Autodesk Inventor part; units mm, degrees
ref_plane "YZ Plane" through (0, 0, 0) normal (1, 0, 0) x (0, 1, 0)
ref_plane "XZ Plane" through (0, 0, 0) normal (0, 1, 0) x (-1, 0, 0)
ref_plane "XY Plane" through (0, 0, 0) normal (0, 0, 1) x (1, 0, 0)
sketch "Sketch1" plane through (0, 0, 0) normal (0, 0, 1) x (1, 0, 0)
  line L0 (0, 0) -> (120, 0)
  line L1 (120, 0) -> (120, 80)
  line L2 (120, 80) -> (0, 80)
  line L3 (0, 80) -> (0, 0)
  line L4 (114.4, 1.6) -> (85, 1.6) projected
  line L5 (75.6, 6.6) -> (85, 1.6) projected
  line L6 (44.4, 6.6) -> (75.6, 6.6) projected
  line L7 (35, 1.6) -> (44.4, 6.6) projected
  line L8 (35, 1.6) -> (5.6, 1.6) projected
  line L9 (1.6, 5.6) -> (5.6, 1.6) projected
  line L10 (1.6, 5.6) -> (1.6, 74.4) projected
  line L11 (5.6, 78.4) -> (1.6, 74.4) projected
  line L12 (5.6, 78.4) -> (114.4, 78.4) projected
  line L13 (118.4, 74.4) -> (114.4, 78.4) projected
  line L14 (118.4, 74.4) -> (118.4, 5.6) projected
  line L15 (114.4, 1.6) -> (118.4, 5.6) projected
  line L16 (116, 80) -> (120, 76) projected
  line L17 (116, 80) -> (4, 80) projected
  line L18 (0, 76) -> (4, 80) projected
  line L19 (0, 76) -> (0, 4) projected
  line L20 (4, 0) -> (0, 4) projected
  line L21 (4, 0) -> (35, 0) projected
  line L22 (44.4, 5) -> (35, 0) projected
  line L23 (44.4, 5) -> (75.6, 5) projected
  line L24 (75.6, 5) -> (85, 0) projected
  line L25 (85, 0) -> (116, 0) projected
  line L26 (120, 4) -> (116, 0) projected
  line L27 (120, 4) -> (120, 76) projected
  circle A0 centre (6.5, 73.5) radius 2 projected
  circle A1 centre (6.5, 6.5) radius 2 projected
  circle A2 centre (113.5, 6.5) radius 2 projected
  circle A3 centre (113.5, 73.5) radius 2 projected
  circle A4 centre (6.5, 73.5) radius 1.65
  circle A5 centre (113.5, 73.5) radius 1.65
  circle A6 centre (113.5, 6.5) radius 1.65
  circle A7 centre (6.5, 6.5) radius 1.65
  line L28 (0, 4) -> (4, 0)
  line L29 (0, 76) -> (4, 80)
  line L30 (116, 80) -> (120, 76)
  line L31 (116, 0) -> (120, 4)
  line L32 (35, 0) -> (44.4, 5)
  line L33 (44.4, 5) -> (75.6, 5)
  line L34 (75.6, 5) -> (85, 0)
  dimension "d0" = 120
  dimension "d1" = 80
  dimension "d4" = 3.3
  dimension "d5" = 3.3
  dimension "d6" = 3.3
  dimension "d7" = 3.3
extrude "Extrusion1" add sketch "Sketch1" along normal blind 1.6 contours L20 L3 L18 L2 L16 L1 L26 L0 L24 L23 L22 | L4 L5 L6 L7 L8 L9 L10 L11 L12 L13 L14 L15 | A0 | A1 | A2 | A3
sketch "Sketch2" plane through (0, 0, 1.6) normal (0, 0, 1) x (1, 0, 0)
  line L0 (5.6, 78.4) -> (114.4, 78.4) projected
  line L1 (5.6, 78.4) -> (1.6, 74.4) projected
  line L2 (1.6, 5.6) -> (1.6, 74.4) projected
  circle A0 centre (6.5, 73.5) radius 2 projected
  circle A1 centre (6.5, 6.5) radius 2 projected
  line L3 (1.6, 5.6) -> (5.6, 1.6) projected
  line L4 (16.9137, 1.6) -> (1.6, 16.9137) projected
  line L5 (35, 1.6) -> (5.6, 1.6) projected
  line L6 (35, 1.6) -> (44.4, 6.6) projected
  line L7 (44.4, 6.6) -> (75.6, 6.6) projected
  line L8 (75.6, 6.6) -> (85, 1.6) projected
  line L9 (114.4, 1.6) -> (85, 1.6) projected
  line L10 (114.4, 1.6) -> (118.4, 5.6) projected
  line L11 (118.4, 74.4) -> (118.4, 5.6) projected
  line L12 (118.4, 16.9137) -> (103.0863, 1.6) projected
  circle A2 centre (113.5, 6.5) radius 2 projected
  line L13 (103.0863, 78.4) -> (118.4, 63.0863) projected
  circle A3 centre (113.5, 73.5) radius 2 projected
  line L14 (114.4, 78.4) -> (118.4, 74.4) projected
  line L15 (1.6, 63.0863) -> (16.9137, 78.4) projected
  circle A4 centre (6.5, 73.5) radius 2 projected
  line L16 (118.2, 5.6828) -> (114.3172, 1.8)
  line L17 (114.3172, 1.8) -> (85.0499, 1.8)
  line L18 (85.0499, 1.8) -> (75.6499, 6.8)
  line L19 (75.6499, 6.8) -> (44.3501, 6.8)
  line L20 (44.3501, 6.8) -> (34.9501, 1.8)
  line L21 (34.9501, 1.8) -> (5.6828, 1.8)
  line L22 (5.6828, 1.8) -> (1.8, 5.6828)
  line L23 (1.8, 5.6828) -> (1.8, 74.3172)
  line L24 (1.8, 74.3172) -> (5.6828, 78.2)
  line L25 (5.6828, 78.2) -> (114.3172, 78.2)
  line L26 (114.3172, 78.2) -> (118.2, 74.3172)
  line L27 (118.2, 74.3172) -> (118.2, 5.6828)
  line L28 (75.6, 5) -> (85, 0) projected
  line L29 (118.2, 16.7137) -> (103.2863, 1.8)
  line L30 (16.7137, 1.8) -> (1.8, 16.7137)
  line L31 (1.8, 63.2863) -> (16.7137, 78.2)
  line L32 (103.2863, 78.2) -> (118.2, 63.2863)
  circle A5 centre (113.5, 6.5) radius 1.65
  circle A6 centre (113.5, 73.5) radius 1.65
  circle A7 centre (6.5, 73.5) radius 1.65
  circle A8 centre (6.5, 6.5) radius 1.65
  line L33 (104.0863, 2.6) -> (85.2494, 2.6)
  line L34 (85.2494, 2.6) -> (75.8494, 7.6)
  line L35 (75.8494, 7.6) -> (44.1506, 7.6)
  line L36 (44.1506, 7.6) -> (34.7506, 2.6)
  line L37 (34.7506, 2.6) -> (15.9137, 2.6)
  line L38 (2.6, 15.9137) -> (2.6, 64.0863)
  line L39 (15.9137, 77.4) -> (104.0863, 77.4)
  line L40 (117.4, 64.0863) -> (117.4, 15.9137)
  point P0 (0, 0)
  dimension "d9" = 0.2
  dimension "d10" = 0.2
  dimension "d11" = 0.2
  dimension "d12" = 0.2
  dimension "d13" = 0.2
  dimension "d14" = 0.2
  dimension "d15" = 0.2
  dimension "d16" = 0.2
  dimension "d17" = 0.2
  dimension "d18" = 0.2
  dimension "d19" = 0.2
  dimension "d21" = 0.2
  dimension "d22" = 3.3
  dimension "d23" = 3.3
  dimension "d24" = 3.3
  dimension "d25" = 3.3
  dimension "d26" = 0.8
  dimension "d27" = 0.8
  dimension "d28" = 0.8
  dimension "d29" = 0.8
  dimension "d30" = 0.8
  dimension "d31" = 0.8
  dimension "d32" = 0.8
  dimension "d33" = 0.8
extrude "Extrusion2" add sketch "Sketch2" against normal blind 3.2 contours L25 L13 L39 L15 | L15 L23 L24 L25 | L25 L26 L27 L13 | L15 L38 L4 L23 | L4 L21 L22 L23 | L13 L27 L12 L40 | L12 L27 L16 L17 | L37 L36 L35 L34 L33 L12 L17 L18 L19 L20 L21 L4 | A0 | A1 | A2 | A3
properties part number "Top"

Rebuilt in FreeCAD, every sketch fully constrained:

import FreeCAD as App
import Part
import Sketcher
Q = App.Units.Quantity

doc = App.newDocument("Part")
params = doc.addObject("Spreadsheet::Sheet", "Params")
for row, (alias, value) in enumerate([
    ("sketch1_diameter", "3.3 mm"),
    ("sketch1_width", "31 mm"),
    ("sketch1_width2", "112 mm"),
    ("sketch1_width3", "31.2 mm"),
    ("pad1_length", "1.6 mm"),
    ("sketch2_diameter", "3.3 mm"),
    ("pad2_length", "3.2 mm"),
], start=1):
    params.set(f"A{row}", alias)
    params.set(f"B{row}", "=" + value)
    params.setAlias(f"B{row}", alias)

body = doc.addObject("PartDesign::Body", "Body")

# Sketch on XY plane
sketch1 = body.newObject("Sketcher::SketchObject", "Sketch")
sketch1.AttachmentSupport = (doc.getObject("XY_Plane"), [""])
sketch1.MapMode = "FlatFace"
sketch1.addGeometry(Part.LineSegment(App.Vector(0, 4, 0), App.Vector(4, 0, 0)), False)
sketch1.addGeometry(Part.LineSegment(App.Vector(4, 0, 0), App.Vector(35, 0, 0)), False)
sketch1.addGeometry(Part.LineSegment(App.Vector(35, 0, 0), App.Vector(44.4, 5, 0)), False)
sketch1.addGeometry(Part.LineSegment(App.Vector(44.4, 5, 0), App.Vector(75.6, 5, 0)), False)
sketch1.addGeometry(Part.LineSegment(App.Vector(75.6, 5, 0), App.Vector(85, 0, 0)), False)
sketch1.addGeometry(Part.LineSegment(App.Vector(85, 0, 0), App.Vector(116, 0, 0)), False)
sketch1.addGeometry(Part.LineSegment(App.Vector(116, 0, 0), App.Vector(120, 4, 0)), False)
sketch1.addGeometry(Part.LineSegment(App.Vector(120, 4, 0), App.Vector(120, 76, 0)), False)
sketch1.addGeometry(Part.LineSegment(App.Vector(120, 76, 0), App.Vector(116, 80, 0)), False)
sketch1.addGeometry(Part.LineSegment(App.Vector(116, 80, 0), App.Vector(4, 80, 0)), False)
sketch1.addGeometry(Part.LineSegment(App.Vector(4, 80, 0), App.Vector(0, 76, 0)), False)
sketch1.addGeometry(Part.LineSegment(App.Vector(0, 76, 0), App.Vector(0, 4, 0)), False)
sketch1.addGeometry(Part.Circle(App.Vector(6.5, 6.5, 0), App.Vector(0, 0, 1), 1.65), False)
sketch1.addGeometry(Part.Circle(App.Vector(113.5, 6.5, 0), App.Vector(0, 0, 1), 1.65), False)
sketch1.addGeometry(Part.Circle(App.Vector(6.5, 73.5, 0), App.Vector(0, 0, 1), 1.65), False)
sketch1.addGeometry(Part.Circle(App.Vector(113.5, 73.5, 0), App.Vector(0, 0, 1), 1.65), False)
sketch1.addConstraint(Sketcher.Constraint("Coincident", 0, 2, 1, 1))
sketch1.addConstraint(Sketcher.Constraint("Coincident", 1, 2, 2, 1))
sketch1.addConstraint(Sketcher.Constraint("Coincident", 2, 2, 3, 1))
sketch1.addConstraint(Sketcher.Constraint("Coincident", 3, 2, 4, 1))
sketch1.addConstraint(Sketcher.Constraint("Coincident", 4, 2, 5, 1))
sketch1.addConstraint(Sketcher.Constraint("Coincident", 5, 2, 6, 1))
sketch1.addConstraint(Sketcher.Constraint("Coincident", 6, 2, 7, 1))
sketch1.addConstraint(Sketcher.Constraint("Coincident", 7, 2, 8, 1))
sketch1.addConstraint(Sketcher.Constraint("Coincident", 8, 2, 9, 1))
sketch1.addConstraint(Sketcher.Constraint("Coincident", 9, 2, 10, 1))
sketch1.addConstraint(Sketcher.Constraint("Coincident", 10, 2, 11, 1))
sketch1.addConstraint(Sketcher.Constraint("Coincident", 11, 2, 0, 1))
sketch1.addConstraint(Sketcher.Constraint("Horizontal", 1))
sketch1.addConstraint(Sketcher.Constraint("Horizontal", 3))
sketch1.addConstraint(Sketcher.Constraint("Horizontal", 5))
sketch1.addConstraint(Sketcher.Constraint("Vertical", 7))
sketch1.addConstraint(Sketcher.Constraint("Horizontal", 9))
sketch1.addConstraint(Sketcher.Constraint("Vertical", 11))
sketch1.addConstraint(Sketcher.Constraint("Equal", 12, 13))
sketch1.addConstraint(Sketcher.Constraint("Equal", 13, 14))
sketch1.addConstraint(Sketcher.Constraint("Equal", 14, 15))
sketch1.addConstraint(Sketcher.Constraint("PointOnObject", 0, 2, -1))
sketch1.addConstraint(Sketcher.Constraint("PointOnObject", 4, 2, -1))
sketch1.addConstraint(Sketcher.Constraint("PointOnObject", 10, 2, -2))
sketch1.addConstraint(Sketcher.Constraint("Perpendicular", 0, 6))
sketch1.addConstraint(Sketcher.Constraint("Perpendicular", 6, 8))
sketch1.addConstraint(Sketcher.Constraint("Perpendicular", 8, 10))
sketch1.addConstraint(Sketcher.Constraint("Horizontal", 12, 3, 13, 3))
sketch1.addConstraint(Sketcher.Constraint("Horizontal", 14, 3, 15, 3))
sketch1.addConstraint(Sketcher.Constraint("Horizontal", 7, 2, 10, 2))
sketch1.addConstraint(Sketcher.Constraint("Horizontal", 6, 2, 11, 2))
sketch1.addConstraint(Sketcher.Constraint("Vertical", 12, 3, 14, 3))
sketch1.addConstraint(Sketcher.Constraint("Vertical", 13, 3, 15, 3))
sketch1.addConstraint(Sketcher.Constraint("Vertical", 5, 2, 8, 2))
sketch1.addConstraint(Sketcher.Constraint("Vertical", 0, 2, 9, 2))
sketch1.addConstraint(Sketcher.Constraint("Equal", 1, 5))
sketch1.addConstraint(Sketcher.Constraint("Equal", 2, 4))
sketch1.addConstraint(Sketcher.Constraint("Diameter", 12, 3.3))
sketch1.addConstraint(Sketcher.Constraint("DistanceX", -1, 1, 6, 2, 120.0))
sketch1.addConstraint(Sketcher.Constraint("DistanceY", -1, 1, 8, 2, 80.0))
sketch1.addConstraint(Sketcher.Constraint("DistanceX", 1, 1, 1, 2, 31.0))
sketch1.addConstraint(Sketcher.Constraint("DistanceX", 9, 2, 9, 1, 112.0))
sketch1.addConstraint(Sketcher.Constraint("DistanceX", 3, 1, 3, 2, 31.2))
sketch1.addConstraint(Sketcher.Constraint("DistanceY", -1, 1, 2, 2, 5.0))
sketch1.addConstraint(Sketcher.Constraint("DistanceX", 12, 3, 13, 3, 107.0))
sketch1.addConstraint(Sketcher.Constraint("DistanceY", 12, 3, 14, 3, 67.0))
sketch1.addConstraint(Sketcher.Constraint("DistanceX", -1, 1, 12, 3, 6.5))
sketch1.addConstraint(Sketcher.Constraint("DistanceY", -1, 1, 12, 3, 6.5))
sketch1.setExpression("Constraints[37]", "Params.sketch1_diameter")
sketch1.setExpression("Constraints[40]", "Params.sketch1_width")
sketch1.setExpression("Constraints[41]", "Params.sketch1_width2")
sketch1.setExpression("Constraints[42]", "Params.sketch1_width3")
pad1 = body.newObject("PartDesign::Pad", "Pad")
pad1.Profile = sketch1
pad1.setExpression("Length", "Params.pad1_length")

# Sketch on XY plane
sketch2 = body.newObject("Sketcher::SketchObject", "Sketch001")
sketch2.AttachmentSupport = (doc.getObject("XY_Plane"), [""])
sketch2.MapMode = "FlatFace"
sketch2.AttachmentOffset = App.Placement(App.Vector(0, 0, 1.6), App.Rotation())
sketch2.addGeometry(Part.LineSegment(App.Vector(5.6828, 78.2, 0), App.Vector(1.8, 74.3172, 0)), False)
sketch2.addGeometry(Part.LineSegment(App.Vector(1.8, 74.3172, 0), App.Vector(1.8, 5.6828, 0)), False)
sketch2.addGeometry(Part.LineSegment(App.Vector(1.8, 5.6828, 0), App.Vector(5.6828, 1.8, 0)), False)
sketch2.addGeometry(Part.LineSegment(App.Vector(5.6828, 1.8, 0), App.Vector(34.9501, 1.8, 0)), False)
sketch2.addGeometry(Part.LineSegment(App.Vector(34.9501, 1.8, 0), App.Vector(44.3501, 6.8, 0)), False)
sketch2.addGeometry(Part.LineSegment(App.Vector(44.3501, 6.8, 0), App.Vector(75.6499, 6.8, 0)), False)
sketch2.addGeometry(Part.LineSegment(App.Vector(75.6499, 6.8, 0), App.Vector(85.0499, 1.8, 0)), False)
sketch2.addGeometry(Part.LineSegment(App.Vector(85.0499, 1.8, 0), App.Vector(114.3172, 1.8, 0)), False)
sketch2.addGeometry(Part.LineSegment(App.Vector(114.3172, 1.8, 0), App.Vector(118.2, 5.6828, 0)), False)
sketch2.addGeometry(Part.LineSegment(App.Vector(118.2, 5.6828, 0), App.Vector(118.2, 74.3172, 0)), False)
sketch2.addGeometry(Part.LineSegment(App.Vector(118.2, 74.3172, 0), App.Vector(114.3172, 78.2, 0)), False)
sketch2.addGeometry(Part.LineSegment(App.Vector(114.3172, 78.2, 0), App.Vector(5.6828, 78.2, 0)), False)
sketch2.addGeometry(Part.LineSegment(App.Vector(15.9137, 77.4, 0), App.Vector(104.0863, 77.4, 0)), False)
sketch2.addGeometry(Part.LineSegment(App.Vector(104.0863, 77.4, 0), App.Vector(117.4, 64.0863, 0)), False)
sketch2.addGeometry(Part.LineSegment(App.Vector(117.4, 64.0863, 0), App.Vector(117.4, 15.9137, 0)), False)
sketch2.addGeometry(Part.LineSegment(App.Vector(117.4, 15.9137, 0), App.Vector(104.0863, 2.6, 0)), False)
sketch2.addGeometry(Part.LineSegment(App.Vector(104.0863, 2.6, 0), App.Vector(85.2494, 2.6, 0)), False)
sketch2.addGeometry(Part.LineSegment(App.Vector(85.2494, 2.6, 0), App.Vector(75.8494, 7.6, 0)), False)
sketch2.addGeometry(Part.LineSegment(App.Vector(75.8494, 7.6, 0), App.Vector(44.1506, 7.6, 0)), False)
sketch2.addGeometry(Part.LineSegment(App.Vector(44.1506, 7.6, 0), App.Vector(34.7506, 2.6, 0)), False)
sketch2.addGeometry(Part.LineSegment(App.Vector(34.7506, 2.6, 0), App.Vector(15.9137, 2.6, 0)), False)
sketch2.addGeometry(Part.LineSegment(App.Vector(15.9137, 2.6, 0), App.Vector(2.6, 15.9137, 0)), False)
sketch2.addGeometry(Part.LineSegment(App.Vector(2.6, 15.9137, 0), App.Vector(2.6, 64.0863, 0)), False)
sketch2.addGeometry(Part.LineSegment(App.Vector(2.6, 64.0863, 0), App.Vector(15.9137, 77.4, 0)), False)
sketch2.addGeometry(Part.Circle(App.Vector(113.5, 73.5, 0), App.Vector(0, 0, 1), 1.65), False)
sketch2.addGeometry(Part.Circle(App.Vector(6.5, 73.5, 0), App.Vector(0, 0, 1), 1.65), False)
sketch2.addGeometry(Part.Circle(App.Vector(113.5, 6.5, 0), App.Vector(0, 0, 1), 1.65), False)
sketch2.addGeometry(Part.Circle(App.Vector(6.5, 6.5, 0), App.Vector(0, 0, 1), 1.65), False)
sketch2.addConstraint(Sketcher.Constraint("Coincident", 0, 2, 1, 1))
sketch2.addConstraint(Sketcher.Constraint("Coincident", 1, 2, 2, 1))
sketch2.addConstraint(Sketcher.Constraint("Coincident", 2, 2, 3, 1))
sketch2.addConstraint(Sketcher.Constraint("Coincident", 3, 2, 4, 1))
sketch2.addConstraint(Sketcher.Constraint("Coincident", 4, 2, 5, 1))
sketch2.addConstraint(Sketcher.Constraint("Coincident", 5, 2, 6, 1))
sketch2.addConstraint(Sketcher.Constraint("Coincident", 6, 2, 7, 1))
sketch2.addConstraint(Sketcher.Constraint("Coincident", 7, 2, 8, 1))
sketch2.addConstraint(Sketcher.Constraint("Coincident", 8, 2, 9, 1))
sketch2.addConstraint(Sketcher.Constraint("Coincident", 9, 2, 10, 1))
sketch2.addConstraint(Sketcher.Constraint("Coincident", 10, 2, 11, 1))
sketch2.addConstraint(Sketcher.Constraint("Coincident", 11, 2, 0, 1))
sketch2.addConstraint(Sketcher.Constraint("Coincident", 12, 2, 13, 1))
sketch2.addConstraint(Sketcher.Constraint("Coincident", 13, 2, 14, 1))
sketch2.addConstraint(Sketcher.Constraint("Coincident", 14, 2, 15, 1))
sketch2.addConstraint(Sketcher.Constraint("Coincident", 15, 2, 16, 1))
sketch2.addConstraint(Sketcher.Constraint("Coincident", 16, 2, 17, 1))
sketch2.addConstraint(Sketcher.Constraint("Coincident", 17, 2, 18, 1))
sketch2.addConstraint(Sketcher.Constraint("Coincident", 18, 2, 19, 1))
sketch2.addConstraint(Sketcher.Constraint("Coincident", 19, 2, 20, 1))
sketch2.addConstraint(Sketcher.Constraint("Coincident", 20, 2, 21, 1))
sketch2.addConstraint(Sketcher.Constraint("Coincident", 21, 2, 22, 1))
sketch2.addConstraint(Sketcher.Constraint("Coincident", 22, 2, 23, 1))
sketch2.addConstraint(Sketcher.Constraint("Coincident", 23, 2, 12, 1))
sketch2.addConstraint(Sketcher.Constraint("Vertical", 1))
sketch2.addConstraint(Sketcher.Constraint("Horizontal", 3))
sketch2.addConstraint(Sketcher.Constraint("Horizontal", 5))
sketch2.addConstraint(Sketcher.Constraint("Horizontal", 7))
sketch2.addConstraint(Sketcher.Constraint("Vertical", 9))
sketch2.addConstraint(Sketcher.Constraint("Horizontal", 11))
sketch2.addConstraint(Sketcher.Constraint("Horizontal", 12))
sketch2.addConstraint(Sketcher.Constraint("Vertical", 14))
sketch2.addConstraint(Sketcher.Constraint("Horizontal", 16))
sketch2.addConstraint(Sketcher.Constraint("Horizontal", 18))
sketch2.addConstraint(Sketcher.Constraint("Horizontal", 20))
sketch2.addConstraint(Sketcher.Constraint("Vertical", 22))
sketch2.addConstraint(Sketcher.Constraint("Equal", 24, 25))
sketch2.addConstraint(Sketcher.Constraint("Equal", 25, 26))
sketch2.addConstraint(Sketcher.Constraint("Equal", 26, 27))
sketch2.addConstraint(Sketcher.Constraint("Perpendicular", 0, 2))
sketch2.addConstraint(Sketcher.Constraint("Perpendicular", 2, 8))
sketch2.addConstraint(Sketcher.Constraint("Perpendicular", 8, 10))
sketch2.addConstraint(Sketcher.Constraint("Parallel", 10, 13))
sketch2.addConstraint(Sketcher.Constraint("Perpendicular", 13, 15))
sketch2.addConstraint(Sketcher.Constraint("Parallel", 6, 17))
sketch2.addConstraint(Sketcher.Constraint("Parallel", 4, 19))
sketch2.addConstraint(Sketcher.Constraint("Perpendicular", 15, 21))
sketch2.addConstraint(Sketcher.Constraint("Perpendicular", 21, 23))
sketch2.addConstraint(Sketcher.Constraint("Horizontal", 24, 3, 25, 3))
sketch2.addConstraint(Sketcher.Constraint("Horizontal", 26, 3, 27, 3))
sketch2.addConstraint(Sketcher.Constraint("Horizontal", 3, 2, 6, 2))
sketch2.addConstraint(Sketcher.Constraint("Horizontal", 1, 2, 8, 2))
sketch2.addConstraint(Sketcher.Constraint("Horizontal", 0, 2, 9, 2))
sketch2.addConstraint(Sketcher.Constraint("Horizontal", 16, 2, 19, 2))
sketch2.addConstraint(Sketcher.Constraint("Horizontal", 14, 2, 21, 2))
sketch2.addConstraint(Sketcher.Constraint("Horizontal", 13, 2, 22, 2))
sketch2.addConstraint(Sketcher.Constraint("Vertical", 24, 3, 26, 3))
sketch2.addConstraint(Sketcher.Constraint("Vertical", 25, 3, 27, 3))
sketch2.addConstraint(Sketcher.Constraint("Vertical", 7, 2, 10, 2))
sketch2.addConstraint(Sketcher.Constraint("Vertical", 2, 2, 11, 2))
sketch2.addConstraint(Sketcher.Constraint("Vertical", 12, 2, 15, 2))
sketch2.addConstraint(Sketcher.Constraint("Equal", 3, 7))
sketch2.addConstraint(Sketcher.Constraint("Equal", 16, 20))
sketch2.addConstraint(Sketcher.Constraint("Equal", 4, 6))
sketch2.addConstraint(Sketcher.Constraint("Equal", 6, 17))
sketch2.addConstraint(Sketcher.Constraint("Diameter", 24, 3.3))
sketch2.addConstraint(Sketcher.Constraint("DistanceY", 12, 2, 10, 2, 0.8))
sketch2.addConstraint(Sketcher.Constraint("DistanceX", 13, 2, 9, 2, 0.8))
sketch2.addConstraint(Sketcher.Constraint("DistanceY", 7, 2, 15, 2, 0.8))
sketch2.addConstraint(Sketcher.Constraint("DistanceX", 1, 2, 21, 2, 0.8))
sketch2.addConstraint(Sketcher.Constraint("DistanceX", 25, 3, 24, 3, 107.0))
sketch2.addConstraint(Sketcher.Constraint("DistanceY", 26, 3, 24, 3, 67.0))
sketch2.addConstraint(Sketcher.Constraint("DistanceY", 3, 2, 4, 2, 5.0))
sketch2.addConstraint(Sketcher.Constraint("DistanceX", -1, 1, 24, 3, 113.5))
sketch2.addConstraint(Sketcher.Constraint("DistanceY", -1, 1, 24, 3, 73.5))
sketch2.addConstraint(Sketcher.Constraint("DistanceX", -1, 1, 0, 2, 1.8))
sketch2.addConstraint(Sketcher.Constraint("DistanceY", -1, 1, 2, 2, 1.8))
sketch2.addConstraint(Sketcher.Constraint("DistanceX", -1, 1, 8, 2, 118.2))
sketch2.addConstraint(Sketcher.Constraint("DistanceY", -1, 1, 10, 2, 78.2))
sketch2.addConstraint(Sketcher.Constraint("Angle", 4, Q("28.0092 deg")))
sketch2.addConstraint(Sketcher.Constraint("DistanceX", 6, 2, 16, 2, 0.1995))
sketch2.addConstraint(Sketcher.Constraint("DistanceX", 16, 2, 16, 1, 18.837))
sketch2.addConstraint(Sketcher.Constraint("DistanceX", -1, 1, 3, 2, 34.95))
sketch2.addConstraint(Sketcher.Constraint("Distance", 0, 5.491))
sketch2.setExpression("Constraints[65]", "Params.sketch2_diameter")
pad2 = body.newObject("PartDesign::Pad", "Pad001")
pad2.Profile = sketch2
pad2.setExpression("Length", "Params.pad2_length")
pad2.Reversed = True

doc.recompute()
